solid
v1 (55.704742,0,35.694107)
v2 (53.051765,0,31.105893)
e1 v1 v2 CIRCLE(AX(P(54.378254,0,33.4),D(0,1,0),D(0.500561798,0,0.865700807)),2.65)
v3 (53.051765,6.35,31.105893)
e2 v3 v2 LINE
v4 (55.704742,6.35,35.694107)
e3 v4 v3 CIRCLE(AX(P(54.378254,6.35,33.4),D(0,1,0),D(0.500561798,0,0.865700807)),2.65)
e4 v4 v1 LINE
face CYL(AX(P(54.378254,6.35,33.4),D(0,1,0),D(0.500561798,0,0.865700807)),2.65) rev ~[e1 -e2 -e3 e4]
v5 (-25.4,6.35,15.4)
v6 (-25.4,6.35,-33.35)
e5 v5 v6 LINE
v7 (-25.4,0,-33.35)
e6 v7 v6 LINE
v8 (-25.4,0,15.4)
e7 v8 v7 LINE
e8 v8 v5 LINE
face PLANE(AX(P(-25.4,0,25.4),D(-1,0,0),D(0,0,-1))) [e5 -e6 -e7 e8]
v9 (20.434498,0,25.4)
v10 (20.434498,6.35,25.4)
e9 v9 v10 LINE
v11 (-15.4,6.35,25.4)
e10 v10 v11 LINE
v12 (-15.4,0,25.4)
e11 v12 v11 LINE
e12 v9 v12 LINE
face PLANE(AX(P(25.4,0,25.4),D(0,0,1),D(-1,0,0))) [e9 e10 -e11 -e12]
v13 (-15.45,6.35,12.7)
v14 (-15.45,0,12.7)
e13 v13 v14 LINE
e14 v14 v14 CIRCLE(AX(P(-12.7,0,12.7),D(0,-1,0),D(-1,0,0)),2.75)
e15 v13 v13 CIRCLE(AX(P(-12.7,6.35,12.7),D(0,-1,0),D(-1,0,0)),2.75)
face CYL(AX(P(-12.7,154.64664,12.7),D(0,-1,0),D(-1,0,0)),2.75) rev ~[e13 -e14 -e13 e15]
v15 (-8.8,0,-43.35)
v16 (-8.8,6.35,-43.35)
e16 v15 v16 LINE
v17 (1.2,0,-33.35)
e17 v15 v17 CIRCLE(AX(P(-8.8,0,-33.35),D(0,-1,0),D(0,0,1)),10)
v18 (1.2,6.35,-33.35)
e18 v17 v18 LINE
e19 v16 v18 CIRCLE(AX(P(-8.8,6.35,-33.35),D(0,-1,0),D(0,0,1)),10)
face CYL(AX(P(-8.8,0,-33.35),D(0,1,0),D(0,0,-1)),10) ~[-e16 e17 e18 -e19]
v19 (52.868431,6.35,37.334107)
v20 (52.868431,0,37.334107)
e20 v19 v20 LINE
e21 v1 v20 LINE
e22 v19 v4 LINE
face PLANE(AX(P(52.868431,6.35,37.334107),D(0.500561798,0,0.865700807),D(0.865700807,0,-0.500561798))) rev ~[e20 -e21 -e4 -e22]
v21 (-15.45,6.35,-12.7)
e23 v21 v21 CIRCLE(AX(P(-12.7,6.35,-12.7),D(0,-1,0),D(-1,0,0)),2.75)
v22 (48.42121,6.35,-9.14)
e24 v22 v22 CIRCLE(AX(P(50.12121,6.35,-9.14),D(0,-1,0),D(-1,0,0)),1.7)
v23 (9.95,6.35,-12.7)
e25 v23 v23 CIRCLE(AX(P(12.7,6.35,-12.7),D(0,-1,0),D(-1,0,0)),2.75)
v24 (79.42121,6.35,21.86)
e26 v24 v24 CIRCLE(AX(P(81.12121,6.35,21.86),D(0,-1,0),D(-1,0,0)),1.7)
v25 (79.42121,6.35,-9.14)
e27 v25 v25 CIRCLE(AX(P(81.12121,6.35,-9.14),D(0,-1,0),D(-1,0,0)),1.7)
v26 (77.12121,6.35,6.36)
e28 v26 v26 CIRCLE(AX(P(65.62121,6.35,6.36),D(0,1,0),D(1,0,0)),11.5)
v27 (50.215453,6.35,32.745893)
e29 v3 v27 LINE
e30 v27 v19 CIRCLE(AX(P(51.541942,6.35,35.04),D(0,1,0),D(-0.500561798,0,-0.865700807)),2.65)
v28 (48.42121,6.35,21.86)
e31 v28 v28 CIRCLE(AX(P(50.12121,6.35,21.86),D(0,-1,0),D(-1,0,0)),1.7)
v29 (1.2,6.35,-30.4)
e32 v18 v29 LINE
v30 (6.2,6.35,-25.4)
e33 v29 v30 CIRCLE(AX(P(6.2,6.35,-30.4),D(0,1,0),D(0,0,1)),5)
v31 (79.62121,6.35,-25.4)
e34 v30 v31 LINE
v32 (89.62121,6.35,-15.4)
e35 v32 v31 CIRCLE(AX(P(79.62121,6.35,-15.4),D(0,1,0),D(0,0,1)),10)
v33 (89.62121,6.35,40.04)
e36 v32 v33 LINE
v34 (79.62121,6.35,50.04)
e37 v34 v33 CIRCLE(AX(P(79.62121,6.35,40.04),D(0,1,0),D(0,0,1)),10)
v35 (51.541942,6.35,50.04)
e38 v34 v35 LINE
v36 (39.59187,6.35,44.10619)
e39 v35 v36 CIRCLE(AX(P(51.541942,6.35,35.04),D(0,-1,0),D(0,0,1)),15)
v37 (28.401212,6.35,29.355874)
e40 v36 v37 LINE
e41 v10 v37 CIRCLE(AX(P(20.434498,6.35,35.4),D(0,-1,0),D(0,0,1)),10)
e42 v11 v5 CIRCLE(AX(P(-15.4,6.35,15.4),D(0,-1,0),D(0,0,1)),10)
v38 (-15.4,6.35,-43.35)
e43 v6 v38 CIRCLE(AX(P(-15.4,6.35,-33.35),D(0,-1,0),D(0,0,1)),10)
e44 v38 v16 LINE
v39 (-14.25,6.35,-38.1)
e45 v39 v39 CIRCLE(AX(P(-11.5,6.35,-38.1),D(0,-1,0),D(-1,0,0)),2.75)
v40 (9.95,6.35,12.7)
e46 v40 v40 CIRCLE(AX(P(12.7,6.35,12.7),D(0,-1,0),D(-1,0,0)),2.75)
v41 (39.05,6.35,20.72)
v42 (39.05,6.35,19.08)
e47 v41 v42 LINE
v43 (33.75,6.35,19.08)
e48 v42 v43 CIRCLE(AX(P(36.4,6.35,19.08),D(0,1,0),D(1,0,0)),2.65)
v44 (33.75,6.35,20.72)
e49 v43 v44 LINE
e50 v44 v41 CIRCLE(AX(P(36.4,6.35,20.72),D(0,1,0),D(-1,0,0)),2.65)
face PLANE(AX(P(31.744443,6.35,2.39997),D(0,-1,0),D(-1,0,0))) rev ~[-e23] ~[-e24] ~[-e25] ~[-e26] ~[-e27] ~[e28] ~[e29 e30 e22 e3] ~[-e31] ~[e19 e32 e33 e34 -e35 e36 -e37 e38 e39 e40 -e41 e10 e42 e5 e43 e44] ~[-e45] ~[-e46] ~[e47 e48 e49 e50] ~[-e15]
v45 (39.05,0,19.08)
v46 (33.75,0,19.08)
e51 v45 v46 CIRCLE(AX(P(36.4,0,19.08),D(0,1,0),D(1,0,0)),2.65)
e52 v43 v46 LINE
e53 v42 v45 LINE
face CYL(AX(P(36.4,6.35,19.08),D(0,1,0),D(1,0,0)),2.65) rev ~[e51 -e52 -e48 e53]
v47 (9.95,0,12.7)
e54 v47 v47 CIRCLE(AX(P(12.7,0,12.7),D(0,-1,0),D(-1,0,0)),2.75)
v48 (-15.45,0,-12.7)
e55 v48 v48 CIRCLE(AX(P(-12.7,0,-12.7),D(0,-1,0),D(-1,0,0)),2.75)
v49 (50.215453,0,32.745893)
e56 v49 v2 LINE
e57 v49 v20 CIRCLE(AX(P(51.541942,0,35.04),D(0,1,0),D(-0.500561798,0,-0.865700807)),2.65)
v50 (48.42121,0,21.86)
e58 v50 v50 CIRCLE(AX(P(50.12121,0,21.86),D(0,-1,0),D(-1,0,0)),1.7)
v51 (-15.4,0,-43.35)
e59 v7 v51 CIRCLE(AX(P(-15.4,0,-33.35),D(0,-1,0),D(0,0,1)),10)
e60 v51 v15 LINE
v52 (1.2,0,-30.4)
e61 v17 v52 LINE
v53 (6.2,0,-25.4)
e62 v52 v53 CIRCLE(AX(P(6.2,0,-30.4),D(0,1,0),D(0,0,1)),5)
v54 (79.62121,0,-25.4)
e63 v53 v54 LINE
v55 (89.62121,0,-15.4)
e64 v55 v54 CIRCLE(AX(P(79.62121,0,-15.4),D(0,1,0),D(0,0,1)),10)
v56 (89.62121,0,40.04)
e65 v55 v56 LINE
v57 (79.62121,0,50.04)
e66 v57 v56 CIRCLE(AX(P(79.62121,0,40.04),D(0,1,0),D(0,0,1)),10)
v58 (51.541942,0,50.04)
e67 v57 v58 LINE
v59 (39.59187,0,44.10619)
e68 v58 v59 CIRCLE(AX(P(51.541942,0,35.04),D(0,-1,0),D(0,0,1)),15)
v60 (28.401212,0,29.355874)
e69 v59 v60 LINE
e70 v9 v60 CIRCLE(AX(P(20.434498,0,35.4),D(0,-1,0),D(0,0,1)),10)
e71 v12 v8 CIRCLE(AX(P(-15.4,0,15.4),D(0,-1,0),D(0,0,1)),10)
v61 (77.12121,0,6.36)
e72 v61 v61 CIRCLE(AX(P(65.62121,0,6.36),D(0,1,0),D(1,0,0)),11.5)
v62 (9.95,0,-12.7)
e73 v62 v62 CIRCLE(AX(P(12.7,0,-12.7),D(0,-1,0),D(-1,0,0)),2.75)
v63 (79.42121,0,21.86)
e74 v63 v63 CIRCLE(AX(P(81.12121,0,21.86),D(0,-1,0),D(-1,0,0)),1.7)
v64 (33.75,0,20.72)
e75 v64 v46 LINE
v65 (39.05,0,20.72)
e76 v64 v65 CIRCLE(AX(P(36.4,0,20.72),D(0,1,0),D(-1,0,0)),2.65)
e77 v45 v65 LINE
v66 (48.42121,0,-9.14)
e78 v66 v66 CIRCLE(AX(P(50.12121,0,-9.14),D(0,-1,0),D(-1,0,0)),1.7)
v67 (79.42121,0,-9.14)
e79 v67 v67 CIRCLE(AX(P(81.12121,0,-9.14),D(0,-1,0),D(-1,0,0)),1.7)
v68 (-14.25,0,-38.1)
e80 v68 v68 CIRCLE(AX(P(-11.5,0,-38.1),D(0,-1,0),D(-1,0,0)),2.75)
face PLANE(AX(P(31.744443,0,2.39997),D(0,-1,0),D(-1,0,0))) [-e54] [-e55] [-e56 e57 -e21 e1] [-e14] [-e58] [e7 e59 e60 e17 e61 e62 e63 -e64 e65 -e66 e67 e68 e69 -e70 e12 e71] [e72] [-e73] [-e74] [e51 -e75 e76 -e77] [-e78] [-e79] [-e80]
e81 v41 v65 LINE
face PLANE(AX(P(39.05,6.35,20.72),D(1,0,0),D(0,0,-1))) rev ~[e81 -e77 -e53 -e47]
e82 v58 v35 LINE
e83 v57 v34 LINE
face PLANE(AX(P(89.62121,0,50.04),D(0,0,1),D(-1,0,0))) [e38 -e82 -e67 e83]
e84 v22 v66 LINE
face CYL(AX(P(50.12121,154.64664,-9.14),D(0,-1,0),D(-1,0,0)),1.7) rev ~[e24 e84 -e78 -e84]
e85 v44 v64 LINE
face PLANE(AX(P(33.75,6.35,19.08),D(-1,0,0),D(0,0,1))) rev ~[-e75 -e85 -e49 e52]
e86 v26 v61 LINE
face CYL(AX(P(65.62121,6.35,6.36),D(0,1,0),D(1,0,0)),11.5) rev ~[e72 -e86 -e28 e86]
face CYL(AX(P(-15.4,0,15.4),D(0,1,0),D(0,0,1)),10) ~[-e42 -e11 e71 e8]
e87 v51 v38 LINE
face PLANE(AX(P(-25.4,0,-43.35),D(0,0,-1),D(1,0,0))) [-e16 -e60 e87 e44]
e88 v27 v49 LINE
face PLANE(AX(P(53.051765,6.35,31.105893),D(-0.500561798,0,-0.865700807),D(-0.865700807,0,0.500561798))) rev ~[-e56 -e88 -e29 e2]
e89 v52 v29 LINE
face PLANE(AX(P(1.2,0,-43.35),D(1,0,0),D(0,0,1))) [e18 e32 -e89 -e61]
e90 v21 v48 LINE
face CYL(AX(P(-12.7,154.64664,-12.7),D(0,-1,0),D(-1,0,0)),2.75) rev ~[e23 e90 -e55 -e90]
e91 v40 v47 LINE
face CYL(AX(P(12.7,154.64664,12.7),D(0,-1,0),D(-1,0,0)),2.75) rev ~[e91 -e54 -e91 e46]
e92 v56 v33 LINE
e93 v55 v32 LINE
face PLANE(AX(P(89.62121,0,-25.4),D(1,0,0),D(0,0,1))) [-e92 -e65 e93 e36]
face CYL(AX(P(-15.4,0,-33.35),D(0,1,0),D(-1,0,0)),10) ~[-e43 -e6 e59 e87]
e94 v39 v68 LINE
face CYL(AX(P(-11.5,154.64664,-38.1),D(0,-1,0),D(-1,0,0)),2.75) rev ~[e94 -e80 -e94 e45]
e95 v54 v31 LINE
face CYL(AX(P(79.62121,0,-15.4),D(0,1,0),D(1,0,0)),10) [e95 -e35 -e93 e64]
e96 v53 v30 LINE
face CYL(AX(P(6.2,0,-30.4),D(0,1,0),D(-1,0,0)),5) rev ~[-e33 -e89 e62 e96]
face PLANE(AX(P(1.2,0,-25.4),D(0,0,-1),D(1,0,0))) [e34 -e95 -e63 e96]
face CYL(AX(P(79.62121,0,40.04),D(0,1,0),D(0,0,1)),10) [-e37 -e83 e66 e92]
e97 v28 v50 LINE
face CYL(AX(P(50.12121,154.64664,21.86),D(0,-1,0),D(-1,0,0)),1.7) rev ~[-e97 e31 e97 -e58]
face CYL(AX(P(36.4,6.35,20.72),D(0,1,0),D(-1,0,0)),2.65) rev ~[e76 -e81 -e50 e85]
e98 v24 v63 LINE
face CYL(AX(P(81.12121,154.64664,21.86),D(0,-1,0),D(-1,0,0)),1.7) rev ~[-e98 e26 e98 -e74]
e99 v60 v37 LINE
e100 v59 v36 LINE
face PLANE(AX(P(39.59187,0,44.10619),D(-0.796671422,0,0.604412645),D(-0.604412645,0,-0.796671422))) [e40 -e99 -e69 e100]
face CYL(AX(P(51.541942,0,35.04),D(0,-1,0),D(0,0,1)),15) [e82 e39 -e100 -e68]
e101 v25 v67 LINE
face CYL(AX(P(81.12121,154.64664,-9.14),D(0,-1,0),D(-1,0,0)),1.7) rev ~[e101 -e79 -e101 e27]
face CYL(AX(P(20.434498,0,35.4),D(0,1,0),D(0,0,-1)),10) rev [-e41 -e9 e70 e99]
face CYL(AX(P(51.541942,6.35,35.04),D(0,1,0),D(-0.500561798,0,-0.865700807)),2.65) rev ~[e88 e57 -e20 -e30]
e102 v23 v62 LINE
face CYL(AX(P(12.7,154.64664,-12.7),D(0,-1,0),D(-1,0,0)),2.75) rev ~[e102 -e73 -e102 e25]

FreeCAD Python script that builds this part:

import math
import FreeCAD as App
import Part
import Sketcher
from FreeCAD import Vector
Q = App.Units.Quantity


def edges_at(feature, points):
    """Names of the edges that pass closest to the given points."""
    edges = feature.Shape.Edges
    near = lambda p: min(range(len(edges)), key=lambda i: edges[i].distToShape(Part.Vertex(*p))[0])
    return sorted({f"Edge{near(p) + 1}" for p in points})

doc = App.newDocument("Part")
params = doc.addObject("Spreadsheet::Sheet", "Params")
for row, (alias, value) in enumerate([
    ("sketch1_radius", "15 mm"),
    ("sketch1_width", "50.8 mm"),
    ("sketch1_width2", "26.6 mm"),
    ("sketch1_height", "75.44 mm"),
    ("sketch1_height2", "17.95 mm"),
    ("pad1_length", "6.35 mm"),
    ("sketch2_diameter", "5.5 mm"),
    ("hole_diameter", "5.5 mm"),
    ("sketch3_radius", "2.65 mm"),
    ("sketch3_height", "1.64 mm"),
    ("fillet_radius", "10 mm"),
    ("sketch4_diameter", "3.4 mm"),
    ("hole2_diameter", "3.4 mm"),
    ("sketch5_diameter", "23 mm"),
    ("fillet2_radius", "5 mm"),
], start=1):
    params.set(f"A{row}", alias)
    params.set(f"B{row}", "=" + value)
    params.setAlias(f"B{row}", alias)

body = doc.addObject("PartDesign::Body", "Body")

# Sketch on XZ plane
sketch1 = body.newObject("Sketcher::SketchObject", "Sketch")
sketch1.AttachmentSupport = (doc.getObject("XZ_Plane"), [""])
sketch1.MapMode = "FlatFace"
sketch1.addGeometry([
    Part.LineSegment(Vector(-25.4, 25.4, 0), Vector(25.4, 25.4, 0)),  # 0
    Part.LineSegment(Vector(25.4, 25.4, 0), Vector(39.59187, 44.10619, 0)),  # 1
    Part.ArcOfCircle(Part.Circle(Vector(51.541942, 35.04, 0), Vector(0, 0, 1), 15), math.radians(90), math.radians(142.813412)),  # 2
    Part.LineSegment(Vector(51.541942, 50.04, 0), Vector(89.62121, 50.04, 0)),  # 3
    Part.LineSegment(Vector(89.62121, 50.04, 0), Vector(89.62121, -25.4, 0)),  # 4
    Part.LineSegment(Vector(89.62121, -25.4, 0), Vector(1.2, -25.4, 0)),  # 5
    Part.LineSegment(Vector(1.2, -25.4, 0), Vector(1.2, -43.35, 0)),  # 6
    Part.LineSegment(Vector(1.2, -43.35, 0), Vector(-25.4, -43.35, 0)),  # 7
    Part.LineSegment(Vector(-25.4, -43.35, 0), Vector(-25.4, 25.4, 0)),  # 8
], False)
sketch1.addConstraint([
    Sketcher.Constraint("Coincident", 0, 2, 1, 1),
    Sketcher.Constraint("Tangent", 1, 2, 2, 2),
    Sketcher.Constraint("Tangent", 2, 1, 3, 1),
    Sketcher.Constraint("Coincident", 3, 2, 4, 1),
    Sketcher.Constraint("Coincident", 4, 2, 5, 1),
    Sketcher.Constraint("Coincident", 5, 2, 6, 1),
    Sketcher.Constraint("Coincident", 6, 2, 7, 1),
    Sketcher.Constraint("Coincident", 7, 2, 8, 1),
    Sketcher.Constraint("Coincident", 8, 2, 0, 1),
    Sketcher.Constraint("Horizontal", 0),
    Sketcher.Constraint("Horizontal", 3),
    Sketcher.Constraint("Vertical", 4),
    Sketcher.Constraint("Horizontal", 5),
    Sketcher.Constraint("Vertical", 6),
    Sketcher.Constraint("Horizontal", 7),
    Sketcher.Constraint("Vertical", 8),
    Sketcher.Constraint("Radius", 2, Q("15 mm")),
    Sketcher.Constraint("DistanceX", 0, 1, 0, 2, Q("50.8 mm")),
    Sketcher.Constraint("DistanceX", 7, 2, 7, 1, Q("26.6 mm")),
    Sketcher.Constraint("DistanceY", 4, 2, 4, 1, Q("75.44 mm")),
    Sketcher.Constraint("DistanceY", 6, 2, 6, 1, Q("17.95 mm")),
    Sketcher.Constraint("DistanceY", 8, 1, 8, 2, Q("68.75 mm")),
    Sketcher.Constraint("DistanceX", -1, 1, 0, 2, Q("25.4 mm")),
    Sketcher.Constraint("DistanceY", -1, 1, 0, 2, Q("25.4 mm")),
    Sketcher.Constraint("DistanceX", 3, 1, 3, 2, Q("38.079268 mm")),
    Sketcher.Constraint("DistanceX", 5, 2, 5, 1, Q("88.42121 mm")),
])
sketch1.setExpression("Constraints[16]", "Params.sketch1_radius")
sketch1.setExpression("Constraints[17]", "Params.sketch1_width")
sketch1.setExpression("Constraints[18]", "Params.sketch1_width2")
sketch1.setExpression("Constraints[19]", "Params.sketch1_height")
sketch1.setExpression("Constraints[20]", "Params.sketch1_height2")
pad1 = body.newObject("PartDesign::Pad", "Pad")
pad1.Profile = sketch1
pad1.setExpression("Length", "Params.pad1_length")
pad1.Reversed = True

# Sketch on XZ plane
sketch2 = body.newObject("Sketcher::SketchObject", "Sketch001")
sketch2.AttachmentSupport = (doc.getObject("XZ_Plane"), [""])
sketch2.MapMode = "FlatFace"
sketch2.AttachmentOffset = App.Placement(Vector(0, 0, -6.35), App.Rotation())
sketch2.addGeometry([
    Part.Circle(Vector(-12.7, -12.7, 0), Vector(0, 0, 1), 2.75),  # 0
    Part.Circle(Vector(12.7, -12.7, 0), Vector(0, 0, 1), 2.75),  # 1
    Part.Circle(Vector(12.7, 12.7, 0), Vector(0, 0, 1), 2.75),  # 2
    Part.Circle(Vector(-12.7, 12.7, 0), Vector(0, 0, 1), 2.75),  # 3
    Part.Circle(Vector(-11.5, -38.1, 0), Vector(0, 0, 1), 2.75),  # 4
], False)
sketch2.addConstraint([
    Sketcher.Constraint("Equal", 0, 1),
    Sketcher.Constraint("Equal", 1, 2),
    Sketcher.Constraint("Equal", 2, 3),
    Sketcher.Constraint("Equal", 3, 4),
    Sketcher.Constraint("Symmetric", 0, 3, 2, 3, -1, 1),
    Sketcher.Constraint("Symmetric", 1, 3, 3, 3, -1, 1),
    Sketcher.Constraint("Symmetric", 0, 3, 1, 3, -2),
    Sketcher.Constraint("Diameter", 0, Q("5.5 mm")),
    Sketcher.Constraint("DistanceX", 0, 3, -1, 1, Q("12.7 mm")),
    Sketcher.Constraint("DistanceY", 0, 3, -1, 1, Q("12.7 mm")),
    Sketcher.Constraint("DistanceX", 4, 3, -1, 1, Q("11.5 mm")),
    Sketcher.Constraint("DistanceY", 4, 3, -1, 1, Q("38.1 mm")),
])
sketch2.setExpression("Constraints[7]", "Params.sketch2_diameter")
doc.recompute()
hole = body.newObject("PartDesign::Hole", "Hole")
hole.Profile = sketch2
hole.ThreadType = "None"
hole.setExpression("Diameter", "Params.hole_diameter")
hole.DepthType = "ThroughAll"
hole.Reversed = True

# Sketch on XZ plane
sketch3 = body.newObject("Sketcher::SketchObject", "Sketch002")
sketch3.AttachmentSupport = (doc.getObject("XZ_Plane"), [""])
sketch3.MapMode = "FlatFace"
sketch3.AttachmentOffset = App.Placement(Vector(0, 0, -6.35), App.Rotation())
sketch3.addGeometry([
    Part.LineSegment(Vector(53.051765, 31.105893, 0), Vector(50.215453, 32.745893, 0)),  # 0
    Part.ArcOfCircle(Part.Circle(Vector(51.541942, 35.04, 0), Vector(0, 0, 1), 2.65), math.radians(59.962825), math.radians(239.962825)),  # 1
    Part.LineSegment(Vector(52.868431, 37.334107, 0), Vector(55.704742, 35.694107, 0)),  # 2
    Part.ArcOfCircle(Part.Circle(Vector(54.378254, 33.4, 0), Vector(0, 0, 1), 2.65), math.radians(-120.037175), math.radians(59.962825)),  # 3
    Part.LineSegment(Vector(33.75, 19.08, 0), Vector(33.75, 20.72, 0)),  # 4
    Part.ArcOfCircle(Part.Circle(Vector(36.4, 20.72, 0), Vector(0, 0, 1), 2.65), math.radians(0), math.radians(180)),  # 5
    Part.LineSegment(Vector(39.05, 20.72, 0), Vector(39.05, 19.08, 0)),  # 6
    Part.ArcOfCircle(Part.Circle(Vector(36.4, 19.08, 0), Vector(0, 0, 1), 2.65), math.radians(180), math.radians(360)),  # 7
], False)
sketch3.addConstraint([
    Sketcher.Constraint("Tangent", 0, 2, 1, 2),
    Sketcher.Constraint("Tangent", 1, 1, 2, 1),
    Sketcher.Constraint("Tangent", 2, 2, 3, 2),
    Sketcher.Constraint("Tangent", 3, 1, 0, 1),
    Sketcher.Constraint("Tangent", 4, 2, 5, 2),
    Sketcher.Constraint("Tangent", 5, 1, 6, 1),
    Sketcher.Constraint("Tangent", 6, 2, 7, 2),
    Sketcher.Constraint("Tangent", 7, 1, 4, 1),
    Sketcher.Constraint("Vertical", 4),
    Sketcher.Constraint("Vertical", 6),
    Sketcher.Constraint("Equal", 1, 3),
    Sketcher.Constraint("Equal", 3, 5),
    Sketcher.Constraint("Radius", 1, Q("2.65 mm")),
    Sketcher.Constraint("DistanceY", 4, 1, 4, 2, Q("1.64 mm")),
    Sketcher.Constraint("DistanceY", -1, 1, 3, 3, Q("33.4 mm")),
    Sketcher.Constraint("DistanceX", -1, 1, 5, 3, Q("36.4 mm")),
    Sketcher.Constraint("DistanceY", -1, 1, 1, 3, Q("35.04 mm")),
    Sketcher.Constraint("DistanceY", -1, 1, 5, 3, Q("20.72 mm")),
    Sketcher.Constraint("DistanceX", 0, 2, 3, 3, Q("4.162801 mm")),
    Sketcher.Constraint("DistanceX", -1, 1, 1, 3, Q("51.541942 mm")),
])
sketch3.setExpression("Constraints[12]", "Params.sketch3_radius")
sketch3.setExpression("Constraints[13]", "Params.sketch3_height")
pocket1 = body.newObject("PartDesign::Pocket", "Pocket")
pocket1.Profile = sketch3
pocket1.Type = "ThroughAll"
pocket1.Reversed = True
doc.recompute()

fillet = body.newObject("PartDesign::Fillet", "Fillet")
fillet.Base = (pocket1, edges_at(pocket1, [
    (-25.4, 3.175, -43.35),
    (1.2, 3.175, -43.35),
    (89.621, 3.175, -25.4),
    (89.621, 3.175, 50.04),
    (25.4, 3.175, 25.4),
    (-25.4, 3.175, 25.4),
]))
fillet.setExpression("Radius", "Params.fillet_radius")

# Sketch on XZ plane
sketch4 = body.newObject("Sketcher::SketchObject", "Sketch003")
sketch4.AttachmentSupport = (doc.getObject("XZ_Plane"), [""])
sketch4.MapMode = "FlatFace"
sketch4.AttachmentOffset = App.Placement(Vector(0, 0, -6.35), App.Rotation())
sketch4.addGeometry([
    Part.Circle(Vector(50.12121, -9.14, 0), Vector(0, 0, 1), 1.7),
    Part.Circle(Vector(81.12121, -9.14, 0), Vector(0, 0, 1), 1.7),
    Part.Circle(Vector(81.12121, 21.86, 0), Vector(0, 0, 1), 1.7),
    Part.Circle(Vector(50.12121, 21.86, 0), Vector(0, 0, 1), 1.7),
], False)
sketch4.addConstraint([
    Sketcher.Constraint("Equal", 0, 1),
    Sketcher.Constraint("Equal", 1, 2),
    Sketcher.Constraint("Equal", 2, 3),
    Sketcher.Constraint("Horizontal", 0, 3, 1, 3),
    Sketcher.Constraint("Horizontal", 2, 3, 3, 3),
    Sketcher.Constraint("Vertical", 1, 3, 2, 3),
    Sketcher.Constraint("Vertical", 0, 3, 3, 3),
    Sketcher.Constraint("Diameter", 0, Q("3.4 mm")),
    Sketcher.Constraint("DistanceX", 0, 3, 1, 3, Q("31 mm")),
    Sketcher.Constraint("DistanceY", 1, 3, 2, 3, Q("31 mm")),
    Sketcher.Constraint("DistanceY", 0, 3, -1, 1, Q("9.14 mm")),
    Sketcher.Constraint("DistanceX", -1, 1, 0, 3, Q("50.12121 mm")),
])
sketch4.setExpression("Constraints[7]", "Params.sketch4_diameter")
doc.recompute()
hole2 = body.newObject("PartDesign::Hole", "Hole001")
hole2.Profile = sketch4
hole2.ThreadType = "None"
hole2.setExpression("Diameter", "Params.hole2_diameter")
hole2.DepthType = "ThroughAll"
hole2.Reversed = True

# Sketch on XZ plane
sketch5 = body.newObject("Sketcher::SketchObject", "Sketch004")
sketch5.AttachmentSupport = (doc.getObject("XZ_Plane"), [""])
sketch5.MapMode = "FlatFace"
sketch5.AttachmentOffset = App.Placement(Vector(0, 0, -6.35), App.Rotation())
sketch5.addGeometry(Part.Circle(Vector(65.62121, 6.36, 0), Vector(0, 0, 1), 11.5), False)
sketch5.addConstraint([
    Sketcher.Constraint("Diameter", 0, Q("23 mm")),
    Sketcher.Constraint("DistanceY", -1, 1, 0, 3, Q("6.36 mm")),
    Sketcher.Constraint("DistanceX", -1, 1, 0, 3, Q("65.62121 mm")),
])
sketch5.setExpression("Constraints[0]", "Params.sketch5_diameter")
pocket2 = body.newObject("PartDesign::Pocket", "Pocket001")
pocket2.Profile = sketch5
pocket2.Type = "ThroughAll"
pocket2.Reversed = True
doc.recompute()

fillet2 = body.newObject("PartDesign::Fillet", "Fillet001")
fillet2.Base = (pocket2, edges_at(pocket2, [(1.2, 3.175, -25.4)]))
fillet2.setExpression("Radius", "Params.fillet2_radius")

doc.recompute()
